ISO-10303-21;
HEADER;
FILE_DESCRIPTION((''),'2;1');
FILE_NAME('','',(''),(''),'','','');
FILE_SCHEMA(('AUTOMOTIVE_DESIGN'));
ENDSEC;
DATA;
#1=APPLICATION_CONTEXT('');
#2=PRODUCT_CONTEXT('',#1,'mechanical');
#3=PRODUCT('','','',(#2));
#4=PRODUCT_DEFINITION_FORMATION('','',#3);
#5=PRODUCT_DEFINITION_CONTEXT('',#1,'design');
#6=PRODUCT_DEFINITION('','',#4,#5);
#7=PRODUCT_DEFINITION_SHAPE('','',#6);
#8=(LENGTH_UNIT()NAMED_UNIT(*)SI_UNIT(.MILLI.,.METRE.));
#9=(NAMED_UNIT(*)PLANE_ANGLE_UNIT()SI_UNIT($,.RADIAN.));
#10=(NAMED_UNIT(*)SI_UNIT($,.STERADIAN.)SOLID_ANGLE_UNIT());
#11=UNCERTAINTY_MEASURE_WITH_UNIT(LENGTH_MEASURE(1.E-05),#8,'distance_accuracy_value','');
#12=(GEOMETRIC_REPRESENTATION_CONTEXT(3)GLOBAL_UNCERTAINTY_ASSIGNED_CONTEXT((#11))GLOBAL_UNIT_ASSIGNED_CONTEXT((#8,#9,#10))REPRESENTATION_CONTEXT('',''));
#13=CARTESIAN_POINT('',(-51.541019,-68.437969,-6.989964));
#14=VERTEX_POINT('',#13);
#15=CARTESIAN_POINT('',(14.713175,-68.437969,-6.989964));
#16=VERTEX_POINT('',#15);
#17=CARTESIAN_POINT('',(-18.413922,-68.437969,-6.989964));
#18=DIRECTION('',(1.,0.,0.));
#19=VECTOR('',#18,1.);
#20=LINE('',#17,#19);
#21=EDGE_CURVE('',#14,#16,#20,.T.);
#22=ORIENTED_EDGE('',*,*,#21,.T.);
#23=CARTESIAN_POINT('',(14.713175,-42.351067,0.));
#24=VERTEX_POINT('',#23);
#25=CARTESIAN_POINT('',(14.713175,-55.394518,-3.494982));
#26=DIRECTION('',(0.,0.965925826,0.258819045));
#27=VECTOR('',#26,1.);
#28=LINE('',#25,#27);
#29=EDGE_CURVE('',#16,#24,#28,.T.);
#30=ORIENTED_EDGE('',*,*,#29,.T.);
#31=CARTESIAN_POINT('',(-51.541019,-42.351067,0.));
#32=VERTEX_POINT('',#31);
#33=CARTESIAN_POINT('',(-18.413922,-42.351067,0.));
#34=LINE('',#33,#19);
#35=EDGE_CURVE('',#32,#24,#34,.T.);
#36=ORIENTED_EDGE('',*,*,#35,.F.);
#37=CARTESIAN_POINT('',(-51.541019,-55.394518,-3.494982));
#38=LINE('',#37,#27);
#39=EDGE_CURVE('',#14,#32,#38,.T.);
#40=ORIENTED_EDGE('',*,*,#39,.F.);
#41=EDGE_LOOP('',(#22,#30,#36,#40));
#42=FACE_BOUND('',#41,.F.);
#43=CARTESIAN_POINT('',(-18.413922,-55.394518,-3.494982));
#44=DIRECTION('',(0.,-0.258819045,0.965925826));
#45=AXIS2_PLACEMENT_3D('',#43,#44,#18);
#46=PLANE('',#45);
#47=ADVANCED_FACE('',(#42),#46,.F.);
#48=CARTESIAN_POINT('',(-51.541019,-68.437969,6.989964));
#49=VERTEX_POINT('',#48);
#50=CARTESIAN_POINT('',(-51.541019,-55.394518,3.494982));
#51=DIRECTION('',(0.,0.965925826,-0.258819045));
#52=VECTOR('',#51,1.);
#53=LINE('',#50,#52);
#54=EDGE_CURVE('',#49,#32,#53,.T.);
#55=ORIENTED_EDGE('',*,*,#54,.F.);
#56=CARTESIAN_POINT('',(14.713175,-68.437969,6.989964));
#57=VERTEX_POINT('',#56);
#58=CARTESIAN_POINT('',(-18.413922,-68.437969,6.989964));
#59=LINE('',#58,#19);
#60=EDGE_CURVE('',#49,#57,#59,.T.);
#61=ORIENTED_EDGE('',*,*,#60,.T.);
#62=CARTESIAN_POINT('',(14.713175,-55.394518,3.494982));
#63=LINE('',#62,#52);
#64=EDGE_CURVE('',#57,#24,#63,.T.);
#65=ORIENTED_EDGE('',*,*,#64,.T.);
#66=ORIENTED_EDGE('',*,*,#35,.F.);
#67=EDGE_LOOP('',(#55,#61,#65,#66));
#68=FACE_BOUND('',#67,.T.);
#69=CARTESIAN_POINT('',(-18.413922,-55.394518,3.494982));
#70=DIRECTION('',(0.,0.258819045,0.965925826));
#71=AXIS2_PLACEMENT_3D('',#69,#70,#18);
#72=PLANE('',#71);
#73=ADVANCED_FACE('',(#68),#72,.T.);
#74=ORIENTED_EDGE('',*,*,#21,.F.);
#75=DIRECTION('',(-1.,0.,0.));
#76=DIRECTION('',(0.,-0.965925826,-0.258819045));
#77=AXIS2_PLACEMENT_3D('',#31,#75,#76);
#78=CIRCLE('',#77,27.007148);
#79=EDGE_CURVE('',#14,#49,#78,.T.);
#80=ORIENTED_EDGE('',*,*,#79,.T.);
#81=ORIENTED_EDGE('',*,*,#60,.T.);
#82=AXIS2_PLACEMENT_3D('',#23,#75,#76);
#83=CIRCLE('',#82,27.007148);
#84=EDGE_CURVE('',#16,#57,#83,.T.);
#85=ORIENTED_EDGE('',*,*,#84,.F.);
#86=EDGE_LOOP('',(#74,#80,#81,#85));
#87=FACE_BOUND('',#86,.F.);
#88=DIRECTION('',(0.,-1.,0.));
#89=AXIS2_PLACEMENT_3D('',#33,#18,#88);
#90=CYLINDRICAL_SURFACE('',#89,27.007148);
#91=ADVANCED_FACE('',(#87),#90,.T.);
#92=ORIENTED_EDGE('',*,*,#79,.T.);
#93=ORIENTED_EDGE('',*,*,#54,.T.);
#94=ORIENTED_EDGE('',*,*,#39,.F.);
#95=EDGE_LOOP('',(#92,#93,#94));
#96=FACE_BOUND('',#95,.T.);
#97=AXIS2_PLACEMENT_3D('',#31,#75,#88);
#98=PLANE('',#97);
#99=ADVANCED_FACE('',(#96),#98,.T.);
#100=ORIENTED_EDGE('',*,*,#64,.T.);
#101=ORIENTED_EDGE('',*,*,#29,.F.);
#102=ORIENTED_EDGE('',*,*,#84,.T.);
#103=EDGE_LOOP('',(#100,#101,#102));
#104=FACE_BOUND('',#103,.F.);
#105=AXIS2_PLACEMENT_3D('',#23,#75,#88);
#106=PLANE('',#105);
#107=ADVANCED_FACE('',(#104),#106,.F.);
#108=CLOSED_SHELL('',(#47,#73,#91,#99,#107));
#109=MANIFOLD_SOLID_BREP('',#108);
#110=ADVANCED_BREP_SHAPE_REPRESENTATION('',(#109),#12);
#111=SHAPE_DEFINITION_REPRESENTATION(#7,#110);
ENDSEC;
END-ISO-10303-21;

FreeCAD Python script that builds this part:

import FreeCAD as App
import Part
import Sketcher

V = App.Vector
Q = App.Units.Quantity

doc = App.newDocument("Part")
params = doc.addObject("Spreadsheet::Sheet", "Params")
for row, (alias, value) in enumerate([
    ("revolution_angle", "15 deg"),
    ("revolution2_angle", "15 deg"),
], start=1):
    params.set(f"A{row}", alias)
    params.set(f"B{row}", "=" + value)
    params.setAlias(f"B{row}", alias)

body = doc.addObject("PartDesign::Body", "Body")

sketch1 = body.newObject("Sketcher::SketchObject", "Sketch")
sketch1.AttachmentSupport = (doc.getObject("XY_Plane"), [""])
sketch1.MapMode = "FlatFace"
sketch1.addGeometry([
    Part.LineSegment(V(-51.541019, -42.351067, 0), V(-51.541019, -69.358215, 0)),
    Part.LineSegment(V(-51.541019, -69.358215, 0), V(14.713175, -69.358215, 0)),
    Part.LineSegment(V(14.713175, -69.358215, 0), V(14.713175, -42.351067, 0)),
    Part.LineSegment(V(14.713175, -42.351067, 0), V(-51.541019, -42.351067, 0)),
], False)
sketch1.addGeometry(Part.LineSegment(V(-51.541019, -42.351067, 0), V(14.713175, -42.351067, 0)), True)
sketch1.addConstraint([
    Sketcher.Constraint("Coincident", 0, 2, 1, 1),
    Sketcher.Constraint("Coincident", 1, 2, 2, 1),
    Sketcher.Constraint("Coincident", 2, 2, 3, 1),
    Sketcher.Constraint("Coincident", 3, 2, 0, 1),
    Sketcher.Constraint("Vertical", 0),
    Sketcher.Constraint("Horizontal", 1),
    Sketcher.Constraint("Vertical", 2),
    Sketcher.Constraint("Horizontal", 3),
    Sketcher.Constraint("Horizontal", 4),
    Sketcher.Constraint("Coincident", 4, 1, 3, 2),
    Sketcher.Constraint("Vertical", 1, 2, 4, 2),
    Sketcher.Constraint("DistanceY", 0, 2, 0, 1, Q("27.007148 mm")),
    Sketcher.Constraint("DistanceX", 1, 1, 1, 2, Q("66.254194 mm")),
    Sketcher.Constraint("DistanceX", 0, 2, -1, 1, Q("51.541019 mm")),
    Sketcher.Constraint("DistanceY", 0, 2, -1, 1, Q("69.358215 mm")),
])
revolution = body.newObject("PartDesign::Revolution", "Revolution")
revolution.Profile = sketch1
revolution.ReferenceAxis = (sketch1, ["Axis0"])
revolution.setExpression("Angle", "Params.revolution_angle")

sketch2 = body.newObject("Sketcher::SketchObject", "Sketch001")
sketch2.AttachmentSupport = (doc.getObject("XY_Plane"), [""])
sketch2.MapMode = "FlatFace"
sketch2.addGeometry([
    Part.LineSegment(V(-51.541019, -42.351067, 0), V(-51.541019, -69.358215, 0)),
    Part.LineSegment(V(-51.541019, -69.358215, 0), V(14.713175, -69.358215, 0)),
    Part.LineSegment(V(14.713175, -69.358215, 0), V(14.713175, -42.351067, 0)),
    Part.LineSegment(V(14.713175, -42.351067, 0), V(-51.541019, -42.351067, 0)),
], False)
sketch2.addGeometry(Part.LineSegment(V(14.713175, -42.351067, 0), V(-51.541019, -42.351067, 0)), True)
sketch2.addConstraint([
    Sketcher.Constraint("Coincident", 0, 2, 1, 1),
    Sketcher.Constraint("Coincident", 1, 2, 2, 1),
    Sketcher.Constraint("Coincident", 2, 2, 3, 1),
    Sketcher.Constraint("Coincident", 3, 2, 0, 1),
    Sketcher.Constraint("Vertical", 0),
    Sketcher.Constraint("Horizontal", 1),
    Sketcher.Constraint("Vertical", 2),
    Sketcher.Constraint("Horizontal", 3),
    Sketcher.Constraint("Horizontal", 4),
    Sketcher.Constraint("Coincident", 4, 1, 2, 2),
    Sketcher.Constraint("Vertical", 0, 2, 4, 2),
    Sketcher.Constraint("DistanceY", 0, 2, 0, 1, Q("27.007148 mm")),
    Sketcher.Constraint("DistanceX", 1, 1, 1, 2, Q("66.254194 mm")),
    Sketcher.Constraint("DistanceX", 0, 2, -1, 1, Q("51.541019 mm")),
    Sketcher.Constraint("DistanceY", 0, 2, -1, 1, Q("69.358215 mm")),
])
revolution2 = body.newObject("PartDesign::Revolution", "Revolution001")
revolution2.Profile = sketch2
revolution2.ReferenceAxis = (sketch2, ["Axis0"])
revolution2.setExpression("Angle", "Params.revolution2_angle")

doc.recompute()
